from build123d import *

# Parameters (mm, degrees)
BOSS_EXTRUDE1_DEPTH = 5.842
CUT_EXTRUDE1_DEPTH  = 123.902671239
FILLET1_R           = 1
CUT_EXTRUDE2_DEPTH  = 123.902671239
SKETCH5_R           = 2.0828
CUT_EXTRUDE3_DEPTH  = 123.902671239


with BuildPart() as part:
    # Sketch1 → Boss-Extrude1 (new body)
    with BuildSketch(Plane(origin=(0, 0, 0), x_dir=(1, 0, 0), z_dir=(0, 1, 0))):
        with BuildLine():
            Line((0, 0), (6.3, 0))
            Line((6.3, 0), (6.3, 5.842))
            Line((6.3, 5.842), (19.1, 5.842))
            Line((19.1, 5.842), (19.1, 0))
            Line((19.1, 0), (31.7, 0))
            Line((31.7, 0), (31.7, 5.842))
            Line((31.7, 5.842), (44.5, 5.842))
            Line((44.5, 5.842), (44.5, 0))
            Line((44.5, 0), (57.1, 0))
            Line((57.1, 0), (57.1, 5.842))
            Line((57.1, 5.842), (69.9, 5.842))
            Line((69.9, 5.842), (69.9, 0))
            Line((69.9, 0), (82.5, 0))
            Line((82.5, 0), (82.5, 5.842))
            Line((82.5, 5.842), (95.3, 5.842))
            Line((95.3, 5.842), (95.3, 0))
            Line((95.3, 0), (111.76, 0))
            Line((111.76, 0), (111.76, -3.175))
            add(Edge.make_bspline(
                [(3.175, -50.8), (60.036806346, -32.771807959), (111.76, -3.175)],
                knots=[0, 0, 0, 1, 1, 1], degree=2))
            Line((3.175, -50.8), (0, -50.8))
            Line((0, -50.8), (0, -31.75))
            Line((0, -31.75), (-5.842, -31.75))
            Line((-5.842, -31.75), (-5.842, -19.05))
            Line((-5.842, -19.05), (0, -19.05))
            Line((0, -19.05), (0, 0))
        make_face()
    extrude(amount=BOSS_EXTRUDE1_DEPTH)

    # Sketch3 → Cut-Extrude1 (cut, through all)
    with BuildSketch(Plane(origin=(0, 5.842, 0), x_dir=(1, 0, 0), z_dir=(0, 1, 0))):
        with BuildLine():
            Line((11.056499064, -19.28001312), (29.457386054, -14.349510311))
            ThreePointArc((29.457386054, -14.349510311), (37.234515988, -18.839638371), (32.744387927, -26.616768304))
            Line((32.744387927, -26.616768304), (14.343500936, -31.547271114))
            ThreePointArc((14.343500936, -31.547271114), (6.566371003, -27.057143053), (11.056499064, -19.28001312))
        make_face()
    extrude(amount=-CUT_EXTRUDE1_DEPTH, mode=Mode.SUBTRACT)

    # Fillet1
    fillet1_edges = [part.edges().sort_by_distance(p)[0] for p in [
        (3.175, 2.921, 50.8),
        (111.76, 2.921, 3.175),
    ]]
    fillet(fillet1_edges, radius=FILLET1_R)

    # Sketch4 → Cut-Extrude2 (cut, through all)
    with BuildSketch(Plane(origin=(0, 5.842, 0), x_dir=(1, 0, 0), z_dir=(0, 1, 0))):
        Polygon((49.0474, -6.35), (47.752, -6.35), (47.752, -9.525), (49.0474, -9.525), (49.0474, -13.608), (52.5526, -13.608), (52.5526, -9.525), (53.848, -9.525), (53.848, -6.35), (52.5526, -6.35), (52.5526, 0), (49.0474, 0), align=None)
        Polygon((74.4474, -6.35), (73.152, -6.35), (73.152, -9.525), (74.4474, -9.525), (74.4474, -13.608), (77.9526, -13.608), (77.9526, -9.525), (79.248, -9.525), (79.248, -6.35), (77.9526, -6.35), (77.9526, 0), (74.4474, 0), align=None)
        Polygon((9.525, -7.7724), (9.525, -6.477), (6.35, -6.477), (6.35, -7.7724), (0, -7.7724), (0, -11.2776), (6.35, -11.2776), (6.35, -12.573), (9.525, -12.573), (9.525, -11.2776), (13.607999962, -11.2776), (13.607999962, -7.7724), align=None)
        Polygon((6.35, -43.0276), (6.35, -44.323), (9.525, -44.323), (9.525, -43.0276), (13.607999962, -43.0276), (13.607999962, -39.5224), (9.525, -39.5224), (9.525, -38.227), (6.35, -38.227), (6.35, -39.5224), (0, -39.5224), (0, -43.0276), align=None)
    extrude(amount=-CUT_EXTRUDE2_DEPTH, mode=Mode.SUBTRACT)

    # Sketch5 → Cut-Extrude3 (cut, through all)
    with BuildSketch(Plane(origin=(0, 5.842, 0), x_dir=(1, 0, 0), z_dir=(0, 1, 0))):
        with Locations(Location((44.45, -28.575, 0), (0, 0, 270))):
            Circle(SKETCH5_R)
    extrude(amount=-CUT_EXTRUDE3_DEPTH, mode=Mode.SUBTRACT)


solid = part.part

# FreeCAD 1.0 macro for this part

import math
import FreeCAD as App
import Part
import Sketcher
from FreeCAD import Vector
Q = App.Units.Quantity


def edges_at(feature, points):
    """Names of the edges that pass closest to the given points."""
    edges = feature.Shape.Edges
    near = lambda p: min(range(len(edges)), key=lambda i: edges[i].distToShape(Part.Vertex(*p))[0])
    return sorted({f"Edge{near(p) + 1}" for p in points})


def add_polygon(sketch, points):
    """Adds a closed chain of lines whose ends are joined by coincident constraints."""
    first, n = sketch.GeometryCount, len(points)
    for a, b in zip(points, points[1:] + points[:1]):
        sketch.addGeometry(Part.LineSegment(App.Vector(*a, 0), App.Vector(*b, 0)), False)
    for i in range(n):
        sketch.addConstraint(Sketcher.Constraint("Coincident", first + i, 2, first + (i + 1) % n, 1))

doc = App.newDocument("Part")
body = doc.addObject("PartDesign::Body", "Body")

# Sketch on XZ plane
sketch1 = body.newObject("Sketcher::SketchObject", "Sketch")
sketch1.AttachmentSupport = (doc.getObject("XZ_Plane"), [""])
sketch1.MapMode = "FlatFace"
sketch1.addGeometry(Part.LineSegment(Vector(6.3, 0, 0), Vector(0, 0, 0)), False)
sketch1.addGeometry(Part.LineSegment(Vector(0, 0, 0), Vector(0, 19.05, 0)), False)
sketch1.addGeometry(Part.LineSegment(Vector(0, 19.05, 0), Vector(-5.842, 19.05, 0)), False)
sketch1.addGeometry(Part.LineSegment(Vector(-5.842, 19.05, 0), Vector(-5.842, 31.75, 0)), False)
sketch1.addGeometry(Part.LineSegment(Vector(-5.842, 31.75, 0), Vector(0, 31.75, 0)), False)
sketch1.addGeometry(Part.LineSegment(Vector(0, 31.75, 0), Vector(0, 50.8, 0)), False)
sketch1.addGeometry(Part.LineSegment(Vector(0, 50.8, 0), Vector(3.175, 50.8, 0)), False)
sketch1.addGeometry(Part.BSplineCurve([Vector(3.175, 50.8, 0), Vector(60.036806, 32.771808, 0), Vector(111.76, 3.175, 0)], [3, 3], [0, 1], False, 2, [1, 1, 1], False), False)
sketch1.addGeometry(Part.LineSegment(Vector(111.76, 3.175, 0), Vector(111.76, 0, 0)), False)
sketch1.addGeometry(Part.LineSegment(Vector(111.76, 0, 0), Vector(95.3, 0, 0)), False)
sketch1.addGeometry(Part.LineSegment(Vector(95.3, 0, 0), Vector(95.3, -5.842, 0)), False)
sketch1.addGeometry(Part.LineSegment(Vector(95.3, -5.842, 0), Vector(82.5, -5.842, 0)), False)
sketch1.addGeometry(Part.LineSegment(Vector(82.5, -5.842, 0), Vector(82.5, 0, 0)), False)
sketch1.addGeometry(Part.LineSegment(Vector(82.5, 0, 0), Vector(69.9, 0, 0)), False)
sketch1.addGeometry(Part.LineSegment(Vector(69.9, 0, 0), Vector(69.9, -5.842, 0)), False)
sketch1.addGeometry(Part.LineSegment(Vector(69.9, -5.842, 0), Vector(57.1, -5.842, 0)), False)
sketch1.addGeometry(Part.LineSegment(Vector(57.1, -5.842, 0), Vector(57.1, 0, 0)), False)
sketch1.addGeometry(Part.LineSegment(Vector(57.1, 0, 0), Vector(44.5, 0, 0)), False)
sketch1.addGeometry(Part.LineSegment(Vector(44.5, 0, 0), Vector(44.5, -5.842, 0)), False)
sketch1.addGeometry(Part.LineSegment(Vector(44.5, -5.842, 0), Vector(31.7, -5.842, 0)), False)
sketch1.addGeometry(Part.LineSegment(Vector(31.7, -5.842, 0), Vector(31.7, 0, 0)), False)
sketch1.addGeometry(Part.LineSegment(Vector(31.7, 0, 0), Vector(19.1, 0, 0)), False)
sketch1.addGeometry(Part.LineSegment(Vector(19.1, 0, 0), Vector(19.1, -5.842, 0)), False)
sketch1.addGeometry(Part.LineSegment(Vector(19.1, -5.842, 0), Vector(6.3, -5.842, 0)), False)
sketch1.addGeometry(Part.LineSegment(Vector(6.3, -5.842, 0), Vector(6.3, 0, 0)), False)
sketch1.addConstraint(Sketcher.Constraint("Block", 7))
sketch1.addConstraint(Sketcher.Constraint("Coincident", 0, 2, 1, 1))
sketch1.addConstraint(Sketcher.Constraint("Coincident", 1, 2, 2, 1))
sketch1.addConstraint(Sketcher.Constraint("Coincident", 2, 2, 3, 1))
sketch1.addConstraint(Sketcher.Constraint("Coincident", 3, 2, 4, 1))
sketch1.addConstraint(Sketcher.Constraint("Coincident", 4, 2, 5, 1))
sketch1.addConstraint(Sketcher.Constraint("Coincident", 5, 2, 6, 1))
sketch1.addConstraint(Sketcher.Constraint("Coincident", 6, 2, 7, 1))
sketch1.addConstraint(Sketcher.Constraint("Coincident", 7, 2, 8, 1))
sketch1.addConstraint(Sketcher.Constraint("Coincident", 8, 2, 9, 1))
sketch1.addConstraint(Sketcher.Constraint("Coincident", 9, 2, 10, 1))
sketch1.addConstraint(Sketcher.Constraint("Coincident", 10, 2, 11, 1))
sketch1.addConstraint(Sketcher.Constraint("Coincident", 11, 2, 12, 1))
sketch1.addConstraint(Sketcher.Constraint("Coincident", 12, 2, 13, 1))
sketch1.addConstraint(Sketcher.Constraint("Coincident", 13, 2, 14, 1))
sketch1.addConstraint(Sketcher.Constraint("Coincident", 14, 2, 15, 1))
sketch1.addConstraint(Sketcher.Constraint("Coincident", 15, 2, 16, 1))
sketch1.addConstraint(Sketcher.Constraint("Coincident", 16, 2, 17, 1))
sketch1.addConstraint(Sketcher.Constraint("Coincident", 17, 2, 18, 1))
sketch1.addConstraint(Sketcher.Constraint("Coincident", 18, 2, 19, 1))
sketch1.addConstraint(Sketcher.Constraint("Coincident", 19, 2, 20, 1))
sketch1.addConstraint(Sketcher.Constraint("Coincident", 20, 2, 21, 1))
sketch1.addConstraint(Sketcher.Constraint("Coincident", 21, 2, 22, 1))
sketch1.addConstraint(Sketcher.Constraint("Coincident", 22, 2, 23, 1))
sketch1.addConstraint(Sketcher.Constraint("Coincident", 23, 2, 24, 1))
sketch1.addConstraint(Sketcher.Constraint("Coincident", 24, 2, 0, 1))
sketch1.addConstraint(Sketcher.Constraint("Horizontal", 0))
sketch1.addConstraint(Sketcher.Constraint("Vertical", 1))
sketch1.addConstraint(Sketcher.Constraint("Horizontal", 2))
sketch1.addConstraint(Sketcher.Constraint("Vertical", 3))
sketch1.addConstraint(Sketcher.Constraint("Horizontal", 4))
sketch1.addConstraint(Sketcher.Constraint("Vertical", 5))
sketch1.addConstraint(Sketcher.Constraint("Horizontal", 6))
sketch1.addConstraint(Sketcher.Constraint("Vertical", 8))
sketch1.addConstraint(Sketcher.Constraint("Horizontal", 9))
sketch1.addConstraint(Sketcher.Constraint("Vertical", 10))
sketch1.addConstraint(Sketcher.Constraint("Horizontal", 11))
sketch1.addConstraint(Sketcher.Constraint("Vertical", 12))
sketch1.addConstraint(Sketcher.Constraint("Horizontal", 13))
sketch1.addConstraint(Sketcher.Constraint("Vertical", 14))
sketch1.addConstraint(Sketcher.Constraint("Horizontal", 15))
sketch1.addConstraint(Sketcher.Constraint("Vertical", 16))
sketch1.addConstraint(Sketcher.Constraint("Horizontal", 17))
sketch1.addConstraint(Sketcher.Constraint("Vertical", 18))
sketch1.addConstraint(Sketcher.Constraint("Horizontal", 19))
sketch1.addConstraint(Sketcher.Constraint("Vertical", 20))
sketch1.addConstraint(Sketcher.Constraint("Horizontal", 21))
sketch1.addConstraint(Sketcher.Constraint("Vertical", 22))
sketch1.addConstraint(Sketcher.Constraint("Horizontal", 23))
sketch1.addConstraint(Sketcher.Constraint("Vertical", 24))
sketch1.addConstraint(Sketcher.Constraint("Coincident", 0, 2, -1, 1))
sketch1.addConstraint(Sketcher.Constraint("PointOnObject", 4, 2, -2))
sketch1.addConstraint(Sketcher.Constraint("PointOnObject", 8, 2, -1))
sketch1.addConstraint(Sketcher.Constraint("PointOnObject", 12, 2, -1))
sketch1.addConstraint(Sketcher.Constraint("PointOnObject", 16, 2, -1))
sketch1.addConstraint(Sketcher.Constraint("PointOnObject", 20, 2, -1))
sketch1.addConstraint(Sketcher.Constraint("Horizontal", 11, 2, 14, 2))
sketch1.addConstraint(Sketcher.Constraint("Horizontal", 15, 2, 18, 2))
sketch1.addConstraint(Sketcher.Constraint("Horizontal", 19, 2, 22, 2))
sketch1.addConstraint(Sketcher.Constraint("Equal", 11, 15))
sketch1.addConstraint(Sketcher.Constraint("Equal", 13, 17))
sketch1.addConstraint(Sketcher.Constraint("Equal", 15, 19))
sketch1.addConstraint(Sketcher.Constraint("Equal", 17, 21))
sketch1.addConstraint(Sketcher.Constraint("Equal", 19, 23))
sketch1.addConstraint(Sketcher.Constraint("Equal", 1, 5))
sketch1.addConstraint(Sketcher.Constraint("Equal", 4, 10))
sketch1.addConstraint(Sketcher.Constraint("DistanceY", 3, 1, 3, 2, Q("0.5 in")))
sketch1.addConstraint(Sketcher.Constraint("DistanceX", 13, 2, 9, 2, Q("1 in")))
sketch1.addConstraint(Sketcher.Constraint("DistanceX", 2, 2, 2, 1, Q("0.23 in")))
sketch1.addConstraint(Sketcher.Constraint("DistanceX", 0, 2, 0, 1, Q("6.3 mm")))
sketch1.addConstraint(Sketcher.Constraint("DistanceX", 9, 2, 9, 1, Q("16.46 mm")))
pad1 = body.newObject("PartDesign::Pad", "Pad")
pad1.Profile = sketch1
pad1.Length = Q("0.23 in")
pad1.Reversed = True

# Sketch on XZ plane
sketch2 = body.newObject("Sketcher::SketchObject", "Sketch001")
sketch2.AttachmentSupport = (doc.getObject("XZ_Plane"), [""])
sketch2.MapMode = "FlatFace"
sketch2.AttachmentOffset = App.Placement(Vector(0, 0, -0.23 * 25.4), App.Rotation())
sketch2.addGeometry(Part.LineSegment(Vector(29, 14, 0), Vector(11, 19, 0)), False)
sketch2.addGeometry(Part.ArcOfCircle(Part.Circle(Vector(13, 25, 0), Vector(0, 0, 1), 6), math.radians(75), math.radians(255)), False)
sketch2.addGeometry(Part.LineSegment(Vector(14, 32, 0), Vector(33, 27, 0)), False)
sketch2.addGeometry(Part.ArcOfCircle(Part.Circle(Vector(31, 20, 0), Vector(0, 0, 1), 6), math.radians(-105), math.radians(75)), False)
sketch2.addConstraint(Sketcher.Constraint("Tangent", 0, 2, 1, 2))
sketch2.addConstraint(Sketcher.Constraint("Tangent", 1, 1, 2, 1))
sketch2.addConstraint(Sketcher.Constraint("Tangent", 2, 2, 3, 2))
sketch2.addConstraint(Sketcher.Constraint("Tangent", 3, 1, 0, 1))
sketch2.addConstraint(Sketcher.Constraint("Equal", 1, 3))
sketch2.addConstraint(Sketcher.Constraint("Radius", 1, Q("0.25 in")))
sketch2.addConstraint(Sketcher.Constraint("Angle", 0, Q("165 deg")))
sketch2.addConstraint(Sketcher.Constraint("DistanceX", -1, 1, 1, 3, Q("0.5 in")))
sketch2.addConstraint(Sketcher.Constraint("Distance", 0, Q("0.75 in")))
sketch2.addConstraint(Sketcher.Constraint("DistanceY", -1, 1, 3, 3, Q("20.483139 mm")))
pocket1 = body.newObject("PartDesign::Pocket", "Pocket")
pocket1.Profile = sketch2
pocket1.Type = "ThroughAll"
pocket1.Reversed = True
doc.recompute()

fillet = body.newObject("PartDesign::Fillet", "Fillet")
fillet.Base = (pocket1, edges_at(pocket1, [(3.175, 2.921, 50.8), (111.76, 2.921, 3.175)]))
fillet.Radius = 1

# Sketch on XZ plane
sketch3 = body.newObject("Sketcher::SketchObject", "Sketch002")
sketch3.AttachmentSupport = (doc.getObject("XZ_Plane"), [""])
sketch3.MapMode = "FlatFace"
sketch3.AttachmentOffset = App.Placement(Vector(0, 0, -0.23 * 25.4), App.Rotation())
add_polygon(sketch3, [(49, 6.3), (47.8, 6.3), (47.8, 9.5), (49, 9.5), (49, 13.6), (52.6, 13.6), (52.6, 9.5), (53.8, 9.5), (53.8, 6.3), (52.6, 6.3), (52.6, 0), (49, 0)])  # lines 0-11
add_polygon(sketch3, [(74.4, 6.3), (73.2, 6.3), (73.2, 9.5), (74.4, 9.5), (74.4, 13.6), (78, 13.6), (78, 9.5), (79.2, 9.5), (79.2, 6.3), (78, 6.3), (78, 0), (74.4, 0)])  # lines 12-23
add_polygon(sketch3, [(9.5, 7.8), (9.5, 6.5), (6.3, 6.5), (6.3, 7.8), (0, 7.8), (0, 11.3), (6.3, 11.3), (6.3, 12.6), (9.5, 12.6), (9.5, 11.3), (13.6, 11.3), (13.6, 7.8)])  # lines 24-35
add_polygon(sketch3, [(6.3, 43), (6.3, 44.3), (9.5, 44.3), (9.5, 43), (13.6, 43), (13.6, 39.5), (9.5, 39.5), (9.5, 38.2), (6.3, 38.2), (6.3, 39.5), (0, 39.5), (0, 43)])  # lines 36-47
sketch3.addConstraint(Sketcher.Constraint("Horizontal", 0))
sketch3.addConstraint(Sketcher.Constraint("Vertical", 1))
sketch3.addConstraint(Sketcher.Constraint("Horizontal", 2))
sketch3.addConstraint(Sketcher.Constraint("Vertical", 3))
sketch3.addConstraint(Sketcher.Constraint("Horizontal", 4))
sketch3.addConstraint(Sketcher.Constraint("Vertical", 5))
sketch3.addConstraint(Sketcher.Constraint("Horizontal", 6))
sketch3.addConstraint(Sketcher.Constraint("Vertical", 7))
sketch3.addConstraint(Sketcher.Constraint("Horizontal", 8))
sketch3.addConstraint(Sketcher.Constraint("Vertical", 9))
sketch3.addConstraint(Sketcher.Constraint("Horizontal", 10))
sketch3.addConstraint(Sketcher.Constraint("Vertical", 11))
sketch3.addConstraint(Sketcher.Constraint("Horizontal", 12))
sketch3.addConstraint(Sketcher.Constraint("Vertical", 13))
sketch3.addConstraint(Sketcher.Constraint("Horizontal", 14))
sketch3.addConstraint(Sketcher.Constraint("Vertical", 15))
sketch3.addConstraint(Sketcher.Constraint("Horizontal", 16))
sketch3.addConstraint(Sketcher.Constraint("Vertical", 17))
sketch3.addConstraint(Sketcher.Constraint("Horizontal", 18))
sketch3.addConstraint(Sketcher.Constraint("Vertical", 19))
sketch3.addConstraint(Sketcher.Constraint("Horizontal", 20))
sketch3.addConstraint(Sketcher.Constraint("Vertical", 21))
sketch3.addConstraint(Sketcher.Constraint("Horizontal", 22))
sketch3.addConstraint(Sketcher.Constraint("Vertical", 23))
sketch3.addConstraint(Sketcher.Constraint("Vertical", 24))
sketch3.addConstraint(Sketcher.Constraint("Horizontal", 25))
sketch3.addConstraint(Sketcher.Constraint("Vertical", 26))
sketch3.addConstraint(Sketcher.Constraint("Horizontal", 27))
sketch3.addConstraint(Sketcher.Constraint("Vertical", 28))
sketch3.addConstraint(Sketcher.Constraint("Horizontal", 29))
sketch3.addConstraint(Sketcher.Constraint("Vertical", 30))
sketch3.addConstraint(Sketcher.Constraint("Horizontal", 31))
sketch3.addConstraint(Sketcher.Constraint("Vertical", 32))
sketch3.addConstraint(Sketcher.Constraint("Horizontal", 33))
sketch3.addConstraint(Sketcher.Constraint("Vertical", 34))
sketch3.addConstraint(Sketcher.Constraint("Horizontal", 35))
sketch3.addConstraint(Sketcher.Constraint("Vertical", 36))
sketch3.addConstraint(Sketcher.Constraint("Horizontal", 37))
sketch3.addConstraint(Sketcher.Constraint("Vertical", 38))
sketch3.addConstraint(Sketcher.Constraint("Horizontal", 39))
sketch3.addConstraint(Sketcher.Constraint("Vertical", 40))
sketch3.addConstraint(Sketcher.Constraint("Horizontal", 41))
sketch3.addConstraint(Sketcher.Constraint("Vertical", 42))
sketch3.addConstraint(Sketcher.Constraint("Horizontal", 43))
sketch3.addConstraint(Sketcher.Constraint("Vertical", 44))
sketch3.addConstraint(Sketcher.Constraint("Horizontal", 45))
sketch3.addConstraint(Sketcher.Constraint("Vertical", 46))
sketch3.addConstraint(Sketcher.Constraint("Horizontal", 47))
sketch3.addConstraint(Sketcher.Constraint("PointOnObject", 9, 2, -1))
sketch3.addConstraint(Sketcher.Constraint("PointOnObject", 21, 2, -1))
sketch3.addConstraint(Sketcher.Constraint("PointOnObject", 27, 2, -2))
sketch3.addConstraint(Sketcher.Constraint("PointOnObject", 45, 2, -2))
sketch3.addConstraint(Sketcher.Constraint("Horizontal", 2, 2, 5, 2))
sketch3.addConstraint(Sketcher.Constraint("Horizontal", 0, 2, 7, 2))
sketch3.addConstraint(Sketcher.Constraint("Horizontal", 11, 2, 12, 2))
sketch3.addConstraint(Sketcher.Constraint("Horizontal", 6, 2, 13, 2))
sketch3.addConstraint(Sketcher.Constraint("Horizontal", 4, 2, 15, 2))
sketch3.addConstraint(Sketcher.Constraint("Horizontal", 14, 2, 17, 2))
sketch3.addConstraint(Sketcher.Constraint("Horizontal", 12, 2, 19, 2))
sketch3.addConstraint(Sketcher.Constraint("Horizontal", 29, 2, 32, 2))
sketch3.addConstraint(Sketcher.Constraint("Horizontal", 27, 2, 34, 2))
sketch3.addConstraint(Sketcher.Constraint("Horizontal", 41, 2, 44, 2))
sketch3.addConstraint(Sketcher.Constraint("Horizontal", 39, 2, 46, 2))
sketch3.addConstraint(Sketcher.Constraint("Vertical", 5, 2, 8, 2))
sketch3.addConstraint(Sketcher.Constraint("Vertical", 3, 2, 10, 2))
sketch3.addConstraint(Sketcher.Constraint("Vertical", 17, 2, 20, 2))
sketch3.addConstraint(Sketcher.Constraint("Vertical", 15, 2, 22, 2))
sketch3.addConstraint(Sketcher.Constraint("Vertical", 26, 2, 29, 2))
sketch3.addConstraint(Sketcher.Constraint("Vertical", 24, 2, 31, 2))
sketch3.addConstraint(Sketcher.Constraint("Vertical", 30, 2, 36, 2))
sketch3.addConstraint(Sketcher.Constraint("Vertical", 35, 2, 37, 2))
sketch3.addConstraint(Sketcher.Constraint("Vertical", 34, 2, 39, 2))
sketch3.addConstraint(Sketcher.Constraint("Vertical", 38, 2, 41, 2))
sketch3.addConstraint(Sketcher.Constraint("Vertical", 36, 2, 43, 2))
sketch3.addConstraint(Sketcher.Constraint("Equal", 2, 6))
sketch3.addConstraint(Sketcher.Constraint("Equal", 8, 12))
sketch3.addConstraint(Sketcher.Constraint("Equal", 10, 16))
sketch3.addConstraint(Sketcher.Constraint("Equal", 14, 18))
sketch3.addConstraint(Sketcher.Constraint("Equal", 43, 1))
sketch3.addConstraint(Sketcher.Constraint("Equal", 41, 3))
sketch3.addConstraint(Sketcher.Constraint("Equal", 47, 9))
sketch3.addConstraint(Sketcher.Constraint("Equal", 20, 24))
sketch3.addConstraint(Sketcher.Constraint("Equal", 22, 28))
sketch3.addConstraint(Sketcher.Constraint("Equal", 26, 30))
sketch3.addConstraint(Sketcher.Constraint("Equal", 32, 36))
sketch3.addConstraint(Sketcher.Constraint("Equal", 34, 40))
sketch3.addConstraint(Sketcher.Constraint("Equal", 38, 42))
sketch3.addConstraint(Sketcher.Constraint("DistanceX", 27, 2, 27, 1, Q("0.25 in")))
sketch3.addConstraint(Sketcher.Constraint("DistanceX", 0, 2, 0, 1, Q("0.051 in")))
sketch3.addConstraint(Sketcher.Constraint("DistanceX", 4, 1, 4, 2, Q("0.138 in")))
sketch3.addConstraint(Sketcher.Constraint("DistanceX", 25, 2, 25, 1, Q("0.125 in")))
sketch3.addConstraint(Sketcher.Constraint("DistanceX", -1, 1, 0, 2, Q("1.88 in")))
sketch3.addConstraint(Sketcher.Constraint("DistanceX", -1, 1, 12, 2, Q("2.88 in")))
sketch3.addConstraint(Sketcher.Constraint("DistanceY", 24, 2, 1, 2, Q("0.12 in")))
sketch3.addConstraint(Sketcher.Constraint("DistanceY", 30, 2, 36, 2, Q("1.25 in")))
sketch3.addConstraint(Sketcher.Constraint("DistanceX", 33, 1, 33, 2, Q("4.083 mm")))
pocket2 = body.newObject("PartDesign::Pocket", "Pocket001")
pocket2.Profile = sketch3
pocket2.Type = "ThroughAll"
pocket2.Reversed = True

# Sketch on XZ plane
sketch4 = body.newObject("Sketcher::SketchObject", "Sketch003")
sketch4.AttachmentSupport = (doc.getObject("XZ_Plane"), [""])
sketch4.MapMode = "FlatFace"
sketch4.AttachmentOffset = App.Placement(Vector(0, 0, -0.23 * 25.4), App.Rotation())
sketch4.addGeometry(Part.Circle(Vector(44.5, 28.6, 0), Vector(0, 0, 1), 2.1), False)
sketch4.addConstraint(Sketcher.Constraint("Diameter", 0, Q("0.164 in")))
sketch4.addConstraint(Sketcher.Constraint("DistanceX", -1, 1, 0, 3, Q("1.75 in")))
sketch4.addConstraint(Sketcher.Constraint("DistanceY", -1, 1, 0, 3, Q("1.125 in")))
pocket3 = body.newObject("PartDesign::Pocket", "Pocket002")
pocket3.Profile = sketch4
pocket3.Type = "ThroughAll"
pocket3.Reversed = True

doc.recompute()
